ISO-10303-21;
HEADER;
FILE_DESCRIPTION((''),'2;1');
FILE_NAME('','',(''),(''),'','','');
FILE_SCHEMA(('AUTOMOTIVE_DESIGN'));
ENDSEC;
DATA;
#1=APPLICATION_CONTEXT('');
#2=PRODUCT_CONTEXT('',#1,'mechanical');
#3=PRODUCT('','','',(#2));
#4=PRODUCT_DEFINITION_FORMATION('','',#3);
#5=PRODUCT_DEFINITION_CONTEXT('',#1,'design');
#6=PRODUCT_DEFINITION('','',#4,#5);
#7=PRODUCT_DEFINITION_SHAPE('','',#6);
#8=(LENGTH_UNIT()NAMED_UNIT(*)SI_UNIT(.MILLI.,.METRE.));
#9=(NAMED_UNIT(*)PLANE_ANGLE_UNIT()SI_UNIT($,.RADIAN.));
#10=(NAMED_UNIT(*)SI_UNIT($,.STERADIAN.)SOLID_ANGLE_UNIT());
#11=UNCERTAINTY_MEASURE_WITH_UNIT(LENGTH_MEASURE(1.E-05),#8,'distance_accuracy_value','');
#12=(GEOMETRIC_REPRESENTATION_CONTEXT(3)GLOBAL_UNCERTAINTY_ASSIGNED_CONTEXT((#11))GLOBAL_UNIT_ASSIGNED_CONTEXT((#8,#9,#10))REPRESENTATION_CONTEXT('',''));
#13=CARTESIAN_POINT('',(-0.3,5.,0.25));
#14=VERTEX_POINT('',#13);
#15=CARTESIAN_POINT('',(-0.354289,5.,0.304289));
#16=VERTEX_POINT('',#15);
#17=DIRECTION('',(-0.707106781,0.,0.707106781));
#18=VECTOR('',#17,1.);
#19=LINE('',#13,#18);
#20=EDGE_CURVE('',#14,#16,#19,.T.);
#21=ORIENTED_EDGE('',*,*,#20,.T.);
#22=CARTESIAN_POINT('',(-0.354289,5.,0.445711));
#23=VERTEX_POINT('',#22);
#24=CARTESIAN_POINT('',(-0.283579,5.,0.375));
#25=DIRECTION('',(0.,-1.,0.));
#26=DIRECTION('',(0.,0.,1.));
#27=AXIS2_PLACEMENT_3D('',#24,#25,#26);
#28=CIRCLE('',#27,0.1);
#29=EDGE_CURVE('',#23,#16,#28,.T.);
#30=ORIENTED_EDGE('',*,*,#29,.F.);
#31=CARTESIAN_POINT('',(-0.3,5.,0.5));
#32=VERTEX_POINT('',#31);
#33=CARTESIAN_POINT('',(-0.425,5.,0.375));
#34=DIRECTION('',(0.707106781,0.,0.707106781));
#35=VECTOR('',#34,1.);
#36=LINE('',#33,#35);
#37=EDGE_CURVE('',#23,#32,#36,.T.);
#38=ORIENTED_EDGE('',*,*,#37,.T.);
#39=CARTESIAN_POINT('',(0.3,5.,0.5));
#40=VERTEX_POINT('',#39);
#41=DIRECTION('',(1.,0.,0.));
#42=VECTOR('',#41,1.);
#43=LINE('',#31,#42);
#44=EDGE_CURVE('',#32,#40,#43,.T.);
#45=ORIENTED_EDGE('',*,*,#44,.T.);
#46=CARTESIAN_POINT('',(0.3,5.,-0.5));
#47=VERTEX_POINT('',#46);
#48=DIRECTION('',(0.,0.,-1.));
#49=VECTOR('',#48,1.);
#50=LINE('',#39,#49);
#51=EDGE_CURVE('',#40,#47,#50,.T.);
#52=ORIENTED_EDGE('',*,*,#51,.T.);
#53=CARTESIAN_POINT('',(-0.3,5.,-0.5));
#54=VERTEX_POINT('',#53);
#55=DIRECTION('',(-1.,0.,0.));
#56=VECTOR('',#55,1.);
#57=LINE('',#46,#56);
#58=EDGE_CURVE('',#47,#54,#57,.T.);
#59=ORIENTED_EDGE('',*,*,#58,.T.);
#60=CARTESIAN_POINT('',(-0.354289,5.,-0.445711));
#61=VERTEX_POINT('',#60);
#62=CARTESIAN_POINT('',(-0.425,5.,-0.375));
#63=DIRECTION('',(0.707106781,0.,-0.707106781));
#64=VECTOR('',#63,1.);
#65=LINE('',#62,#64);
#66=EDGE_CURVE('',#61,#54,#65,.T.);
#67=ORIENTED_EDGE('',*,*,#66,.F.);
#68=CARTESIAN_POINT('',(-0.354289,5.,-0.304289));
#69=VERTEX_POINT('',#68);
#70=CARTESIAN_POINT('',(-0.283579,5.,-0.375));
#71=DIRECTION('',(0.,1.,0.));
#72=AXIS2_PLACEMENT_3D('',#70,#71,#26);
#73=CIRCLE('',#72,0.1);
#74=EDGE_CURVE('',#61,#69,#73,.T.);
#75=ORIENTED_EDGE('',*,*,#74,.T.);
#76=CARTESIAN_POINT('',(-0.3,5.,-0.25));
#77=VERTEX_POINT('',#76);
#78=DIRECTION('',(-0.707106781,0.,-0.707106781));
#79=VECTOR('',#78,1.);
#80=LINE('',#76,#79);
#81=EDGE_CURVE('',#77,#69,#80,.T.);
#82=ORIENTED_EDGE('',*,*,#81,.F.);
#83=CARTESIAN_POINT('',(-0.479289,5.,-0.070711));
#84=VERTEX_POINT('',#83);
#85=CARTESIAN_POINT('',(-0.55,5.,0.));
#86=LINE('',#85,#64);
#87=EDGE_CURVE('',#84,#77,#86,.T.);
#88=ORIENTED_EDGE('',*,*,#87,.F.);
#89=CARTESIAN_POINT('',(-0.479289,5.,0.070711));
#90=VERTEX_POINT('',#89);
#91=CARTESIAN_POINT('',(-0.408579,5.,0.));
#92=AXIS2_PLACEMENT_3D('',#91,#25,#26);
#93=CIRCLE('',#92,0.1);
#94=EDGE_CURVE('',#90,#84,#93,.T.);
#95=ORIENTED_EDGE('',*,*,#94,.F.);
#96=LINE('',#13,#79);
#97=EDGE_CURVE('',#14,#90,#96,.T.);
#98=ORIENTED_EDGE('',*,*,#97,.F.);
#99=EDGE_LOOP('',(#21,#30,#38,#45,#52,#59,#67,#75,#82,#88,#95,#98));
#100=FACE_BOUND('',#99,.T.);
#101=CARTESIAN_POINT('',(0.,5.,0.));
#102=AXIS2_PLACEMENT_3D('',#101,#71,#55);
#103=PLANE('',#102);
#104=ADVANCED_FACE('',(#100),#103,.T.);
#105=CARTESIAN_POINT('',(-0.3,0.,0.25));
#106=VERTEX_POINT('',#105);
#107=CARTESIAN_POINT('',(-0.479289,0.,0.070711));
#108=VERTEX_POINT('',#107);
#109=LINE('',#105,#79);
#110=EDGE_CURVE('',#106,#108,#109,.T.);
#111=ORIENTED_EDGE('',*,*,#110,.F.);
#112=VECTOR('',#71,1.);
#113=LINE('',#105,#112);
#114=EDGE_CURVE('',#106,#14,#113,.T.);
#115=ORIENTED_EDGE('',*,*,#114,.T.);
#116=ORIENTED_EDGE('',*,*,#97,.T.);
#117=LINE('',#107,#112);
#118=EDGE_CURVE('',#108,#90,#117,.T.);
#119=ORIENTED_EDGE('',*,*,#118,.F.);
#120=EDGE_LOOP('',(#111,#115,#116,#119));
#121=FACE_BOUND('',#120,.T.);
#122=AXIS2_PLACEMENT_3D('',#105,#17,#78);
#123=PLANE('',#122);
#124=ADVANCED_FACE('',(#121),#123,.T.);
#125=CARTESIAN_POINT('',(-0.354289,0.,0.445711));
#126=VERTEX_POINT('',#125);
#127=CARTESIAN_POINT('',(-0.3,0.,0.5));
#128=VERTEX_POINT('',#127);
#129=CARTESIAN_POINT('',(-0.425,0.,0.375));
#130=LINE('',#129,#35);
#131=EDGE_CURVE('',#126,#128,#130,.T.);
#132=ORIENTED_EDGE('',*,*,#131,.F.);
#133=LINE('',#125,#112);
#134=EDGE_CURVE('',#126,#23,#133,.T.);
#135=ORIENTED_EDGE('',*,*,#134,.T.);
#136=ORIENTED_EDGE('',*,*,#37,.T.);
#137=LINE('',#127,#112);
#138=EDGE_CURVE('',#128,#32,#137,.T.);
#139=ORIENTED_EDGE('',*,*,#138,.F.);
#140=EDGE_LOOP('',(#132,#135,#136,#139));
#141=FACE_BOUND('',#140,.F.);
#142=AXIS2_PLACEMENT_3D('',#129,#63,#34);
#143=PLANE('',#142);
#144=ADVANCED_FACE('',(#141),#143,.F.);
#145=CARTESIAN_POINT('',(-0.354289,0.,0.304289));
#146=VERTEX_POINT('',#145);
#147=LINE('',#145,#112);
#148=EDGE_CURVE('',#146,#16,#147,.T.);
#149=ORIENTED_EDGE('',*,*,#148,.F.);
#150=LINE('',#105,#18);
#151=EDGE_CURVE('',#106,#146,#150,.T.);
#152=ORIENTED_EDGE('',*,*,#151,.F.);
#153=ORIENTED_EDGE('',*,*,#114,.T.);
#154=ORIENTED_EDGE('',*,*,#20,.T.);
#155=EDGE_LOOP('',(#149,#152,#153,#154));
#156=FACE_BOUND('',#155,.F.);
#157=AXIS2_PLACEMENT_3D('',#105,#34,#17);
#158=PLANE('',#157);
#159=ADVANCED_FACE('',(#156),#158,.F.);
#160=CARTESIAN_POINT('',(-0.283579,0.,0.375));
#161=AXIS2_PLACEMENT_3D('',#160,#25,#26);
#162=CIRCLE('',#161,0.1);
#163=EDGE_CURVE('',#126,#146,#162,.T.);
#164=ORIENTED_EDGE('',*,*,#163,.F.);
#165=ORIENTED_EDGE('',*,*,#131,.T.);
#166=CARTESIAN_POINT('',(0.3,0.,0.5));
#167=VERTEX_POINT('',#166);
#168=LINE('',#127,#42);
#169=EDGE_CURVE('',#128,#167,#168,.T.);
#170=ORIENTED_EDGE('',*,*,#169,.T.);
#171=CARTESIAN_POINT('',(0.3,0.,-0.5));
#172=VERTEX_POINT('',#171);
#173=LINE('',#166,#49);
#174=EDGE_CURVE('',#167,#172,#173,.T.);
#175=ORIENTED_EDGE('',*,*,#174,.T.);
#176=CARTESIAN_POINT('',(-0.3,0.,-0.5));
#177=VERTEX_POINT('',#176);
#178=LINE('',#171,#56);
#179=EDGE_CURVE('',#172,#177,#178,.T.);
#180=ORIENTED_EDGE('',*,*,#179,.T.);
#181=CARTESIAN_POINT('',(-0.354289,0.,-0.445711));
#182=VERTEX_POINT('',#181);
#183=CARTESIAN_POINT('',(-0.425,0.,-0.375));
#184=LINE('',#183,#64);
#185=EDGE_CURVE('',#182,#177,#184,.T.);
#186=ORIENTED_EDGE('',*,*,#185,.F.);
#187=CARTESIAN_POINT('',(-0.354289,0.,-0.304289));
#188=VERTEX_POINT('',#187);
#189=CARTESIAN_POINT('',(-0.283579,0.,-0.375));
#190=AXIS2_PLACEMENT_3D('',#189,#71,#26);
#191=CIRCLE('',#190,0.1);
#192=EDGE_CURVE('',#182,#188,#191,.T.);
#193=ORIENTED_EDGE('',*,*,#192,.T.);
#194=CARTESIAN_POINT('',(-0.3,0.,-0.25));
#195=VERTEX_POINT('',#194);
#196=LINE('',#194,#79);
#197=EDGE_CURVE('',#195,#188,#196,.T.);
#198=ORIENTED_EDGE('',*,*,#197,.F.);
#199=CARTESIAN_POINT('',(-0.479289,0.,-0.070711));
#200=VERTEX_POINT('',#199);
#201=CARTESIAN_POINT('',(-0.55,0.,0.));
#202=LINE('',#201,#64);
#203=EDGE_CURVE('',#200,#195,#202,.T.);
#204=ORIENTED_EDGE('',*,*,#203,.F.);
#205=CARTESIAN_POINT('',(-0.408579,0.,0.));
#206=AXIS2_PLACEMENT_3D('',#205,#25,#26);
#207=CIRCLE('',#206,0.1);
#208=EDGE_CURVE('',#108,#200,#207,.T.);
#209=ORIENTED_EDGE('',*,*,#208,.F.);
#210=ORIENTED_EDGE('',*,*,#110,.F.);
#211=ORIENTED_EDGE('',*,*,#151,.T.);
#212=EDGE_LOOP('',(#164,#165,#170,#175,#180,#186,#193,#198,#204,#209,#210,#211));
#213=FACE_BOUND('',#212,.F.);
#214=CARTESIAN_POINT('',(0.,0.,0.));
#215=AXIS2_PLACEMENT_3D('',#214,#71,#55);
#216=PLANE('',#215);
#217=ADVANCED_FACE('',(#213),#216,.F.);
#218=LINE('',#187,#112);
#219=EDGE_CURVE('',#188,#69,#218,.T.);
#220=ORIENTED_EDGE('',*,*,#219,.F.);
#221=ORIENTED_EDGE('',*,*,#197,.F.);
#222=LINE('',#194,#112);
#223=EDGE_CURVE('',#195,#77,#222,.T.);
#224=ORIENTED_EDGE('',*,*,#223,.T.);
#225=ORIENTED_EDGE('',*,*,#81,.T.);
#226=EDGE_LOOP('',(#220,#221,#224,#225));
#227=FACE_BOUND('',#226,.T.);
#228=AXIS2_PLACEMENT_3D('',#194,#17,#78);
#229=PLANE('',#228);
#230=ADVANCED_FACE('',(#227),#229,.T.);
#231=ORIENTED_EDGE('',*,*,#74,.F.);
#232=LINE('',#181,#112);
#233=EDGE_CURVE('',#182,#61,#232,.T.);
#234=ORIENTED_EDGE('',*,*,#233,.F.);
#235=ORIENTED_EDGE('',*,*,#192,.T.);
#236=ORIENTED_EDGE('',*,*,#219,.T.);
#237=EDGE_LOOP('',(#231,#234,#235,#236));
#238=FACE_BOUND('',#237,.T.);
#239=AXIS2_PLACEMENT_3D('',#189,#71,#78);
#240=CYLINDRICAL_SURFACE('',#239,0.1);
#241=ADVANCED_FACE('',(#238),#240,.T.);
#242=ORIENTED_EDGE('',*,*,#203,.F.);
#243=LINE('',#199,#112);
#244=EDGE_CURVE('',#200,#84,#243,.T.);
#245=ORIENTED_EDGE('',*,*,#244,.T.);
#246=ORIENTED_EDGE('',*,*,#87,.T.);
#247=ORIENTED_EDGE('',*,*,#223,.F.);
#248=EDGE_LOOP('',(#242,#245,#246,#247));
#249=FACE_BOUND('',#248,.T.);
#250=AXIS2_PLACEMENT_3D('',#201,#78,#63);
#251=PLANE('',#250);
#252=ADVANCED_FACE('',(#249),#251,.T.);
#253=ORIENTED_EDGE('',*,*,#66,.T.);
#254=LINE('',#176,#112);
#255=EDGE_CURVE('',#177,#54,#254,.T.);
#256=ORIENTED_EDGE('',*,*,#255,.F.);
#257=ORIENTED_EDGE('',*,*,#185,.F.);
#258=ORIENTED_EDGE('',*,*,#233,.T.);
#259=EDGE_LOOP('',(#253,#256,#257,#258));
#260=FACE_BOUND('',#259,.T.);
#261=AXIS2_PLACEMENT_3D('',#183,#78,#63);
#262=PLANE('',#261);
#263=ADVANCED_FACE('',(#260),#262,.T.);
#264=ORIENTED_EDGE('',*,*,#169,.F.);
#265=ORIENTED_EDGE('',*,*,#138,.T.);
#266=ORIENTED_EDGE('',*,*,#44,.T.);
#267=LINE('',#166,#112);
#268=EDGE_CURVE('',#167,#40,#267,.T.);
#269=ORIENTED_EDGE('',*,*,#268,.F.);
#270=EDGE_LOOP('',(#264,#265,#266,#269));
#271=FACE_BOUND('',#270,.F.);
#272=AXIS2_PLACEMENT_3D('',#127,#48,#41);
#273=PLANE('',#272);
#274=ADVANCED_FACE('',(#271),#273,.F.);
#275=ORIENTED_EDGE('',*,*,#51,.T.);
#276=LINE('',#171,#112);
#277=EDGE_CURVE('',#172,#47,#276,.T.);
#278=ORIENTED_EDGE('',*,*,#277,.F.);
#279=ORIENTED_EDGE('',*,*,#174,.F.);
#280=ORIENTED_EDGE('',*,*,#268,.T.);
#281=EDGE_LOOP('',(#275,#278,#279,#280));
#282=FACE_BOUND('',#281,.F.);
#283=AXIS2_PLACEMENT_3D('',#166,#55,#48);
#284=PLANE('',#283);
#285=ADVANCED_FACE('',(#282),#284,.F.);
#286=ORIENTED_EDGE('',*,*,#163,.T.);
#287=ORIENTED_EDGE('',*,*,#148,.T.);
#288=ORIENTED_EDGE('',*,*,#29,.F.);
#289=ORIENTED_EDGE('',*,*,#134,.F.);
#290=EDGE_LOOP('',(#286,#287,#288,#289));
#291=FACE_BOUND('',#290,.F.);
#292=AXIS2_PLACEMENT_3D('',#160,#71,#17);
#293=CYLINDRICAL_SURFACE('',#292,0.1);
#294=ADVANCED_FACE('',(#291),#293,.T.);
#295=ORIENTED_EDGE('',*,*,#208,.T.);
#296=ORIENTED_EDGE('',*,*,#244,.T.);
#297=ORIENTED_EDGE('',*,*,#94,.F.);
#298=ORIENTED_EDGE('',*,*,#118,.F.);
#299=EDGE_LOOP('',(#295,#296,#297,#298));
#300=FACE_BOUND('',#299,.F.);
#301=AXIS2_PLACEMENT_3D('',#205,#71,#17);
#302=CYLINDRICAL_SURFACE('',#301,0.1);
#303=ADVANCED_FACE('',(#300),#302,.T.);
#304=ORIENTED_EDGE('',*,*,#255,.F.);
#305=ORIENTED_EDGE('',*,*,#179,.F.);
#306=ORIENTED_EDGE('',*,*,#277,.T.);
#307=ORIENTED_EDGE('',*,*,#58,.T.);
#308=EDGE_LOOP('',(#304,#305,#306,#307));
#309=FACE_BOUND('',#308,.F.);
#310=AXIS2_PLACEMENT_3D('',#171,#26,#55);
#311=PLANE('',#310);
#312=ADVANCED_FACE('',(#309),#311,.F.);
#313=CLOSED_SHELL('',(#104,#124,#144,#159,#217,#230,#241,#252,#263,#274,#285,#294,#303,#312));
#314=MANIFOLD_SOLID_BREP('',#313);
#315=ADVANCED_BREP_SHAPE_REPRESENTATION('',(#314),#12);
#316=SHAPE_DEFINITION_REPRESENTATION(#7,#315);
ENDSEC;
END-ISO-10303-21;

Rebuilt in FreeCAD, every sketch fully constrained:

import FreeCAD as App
import Part
import Sketcher
from FreeCAD import Vector
Q = App.Units.Quantity


def edges_at(feature, points):
    """Names of the edges that pass closest to the given points."""
    edges = feature.Shape.Edges
    near = lambda p: min(range(len(edges)), key=lambda i: edges[i].distToShape(Part.Vertex(*p))[0])
    return sorted({f"Edge{near(p) + 1}" for p in points})

doc = App.newDocument("Part")
params = doc.addObject("Spreadsheet::Sheet", "Params")
for row, (alias, value) in enumerate([
    ("sketch1_height", "1 mm"),
    ("sketch1_width", "0.6 mm"),
    ("pad1_length", "5 mm"),
    ("fillet_radius", "0.1 mm"),
], start=1):
    params.set(f"A{row}", alias)
    params.set(f"B{row}", "=" + value)
    params.setAlias(f"B{row}", alias)

body = doc.addObject("PartDesign::Body", "Body")

# Sketch on XZ plane
sketch1 = body.newObject("Sketcher::SketchObject", "Sketch")
sketch1.AttachmentSupport = (doc.getObject("XZ_Plane"), [""])
sketch1.MapMode = "FlatFace"
sketch1.addGeometry([
    Part.LineSegment(Vector(-0.3, 0.5, 0), Vector(0.3, 0.5, 0)),  # 0
    Part.LineSegment(Vector(0.3, 0.5, 0), Vector(0.3, -0.5, 0)),  # 1
    Part.LineSegment(Vector(0.3, -0.5, 0), Vector(-0.3, -0.5, 0)),  # 2
    Part.LineSegment(Vector(-0.3, -0.5, 0), Vector(-0.42, -0.38, 0)),  # 3
    Part.LineSegment(Vector(-0.42, -0.38, 0), Vector(-0.3, -0.25, 0)),  # 4
    Part.LineSegment(Vector(-0.3, -0.25, 0), Vector(-0.55, 0, 0)),  # 5
    Part.LineSegment(Vector(-0.55, 0, 0), Vector(-0.3, 0.25, 0)),  # 6
    Part.LineSegment(Vector(-0.3, 0.25, 0), Vector(-0.42, 0.38, 0)),  # 7
    Part.LineSegment(Vector(-0.42, 0.38, 0), Vector(-0.3, 0.5, 0)),  # 8
], False)
sketch1.addConstraint([
    Sketcher.Constraint("Coincident", 0, 2, 1, 1),
    Sketcher.Constraint("Coincident", 1, 2, 2, 1),
    Sketcher.Constraint("Coincident", 2, 2, 3, 1),
    Sketcher.Constraint("Coincident", 3, 2, 4, 1),
    Sketcher.Constraint("Coincident", 4, 2, 5, 1),
    Sketcher.Constraint("Coincident", 5, 2, 6, 1),
    Sketcher.Constraint("Coincident", 6, 2, 7, 1),
    Sketcher.Constraint("Coincident", 7, 2, 8, 1),
    Sketcher.Constraint("Coincident", 8, 2, 0, 1),
    Sketcher.Constraint("Horizontal", 0),
    Sketcher.Constraint("Vertical", 1),
    Sketcher.Constraint("Horizontal", 2),
    Sketcher.Constraint("Symmetric", 0, 2, 2, 2, -1, 1),
    Sketcher.Constraint("Symmetric", 4, 2, 6, 2, -1),
    Sketcher.Constraint("Symmetric", 3, 2, 7, 2, -1),
    Sketcher.Constraint("PointOnObject", 5, 2, -1),
    Sketcher.Constraint("Perpendicular", 3, 4),
    Sketcher.Constraint("Perpendicular", 4, 5),
    Sketcher.Constraint("Perpendicular", 5, 6),
    Sketcher.Constraint("Perpendicular", 7, 8),
    Sketcher.Constraint("Vertical", 2, 2, 4, 2),
    Sketcher.Constraint("DistanceY", 1, 2, 1, 1, Q("1 mm")),
    Sketcher.Constraint("DistanceX", 0, 1, 0, 2, Q("0.6 mm")),
    Sketcher.Constraint("DistanceY", 4, 2, 6, 2, Q("0.5 mm")),
])
sketch1.setExpression("Constraints[21]", "Params.sketch1_height")
sketch1.setExpression("Constraints[22]", "Params.sketch1_width")
pad1 = body.newObject("PartDesign::Pad", "Pad")
pad1.Profile = sketch1
pad1.setExpression("Length", "Params.pad1_length")
pad1.Reversed = True
doc.recompute()

fillet = body.newObject("PartDesign::Fillet", "Fillet")
fillet.Base = (pad1, edges_at(pad1, [(-0.55, 2.5, 0), (-0.425, 2.5, -0.375), (-0.425, 2.5, 0.375)]))
fillet.setExpression("Radius", "Params.fillet_radius")

doc.recompute()
